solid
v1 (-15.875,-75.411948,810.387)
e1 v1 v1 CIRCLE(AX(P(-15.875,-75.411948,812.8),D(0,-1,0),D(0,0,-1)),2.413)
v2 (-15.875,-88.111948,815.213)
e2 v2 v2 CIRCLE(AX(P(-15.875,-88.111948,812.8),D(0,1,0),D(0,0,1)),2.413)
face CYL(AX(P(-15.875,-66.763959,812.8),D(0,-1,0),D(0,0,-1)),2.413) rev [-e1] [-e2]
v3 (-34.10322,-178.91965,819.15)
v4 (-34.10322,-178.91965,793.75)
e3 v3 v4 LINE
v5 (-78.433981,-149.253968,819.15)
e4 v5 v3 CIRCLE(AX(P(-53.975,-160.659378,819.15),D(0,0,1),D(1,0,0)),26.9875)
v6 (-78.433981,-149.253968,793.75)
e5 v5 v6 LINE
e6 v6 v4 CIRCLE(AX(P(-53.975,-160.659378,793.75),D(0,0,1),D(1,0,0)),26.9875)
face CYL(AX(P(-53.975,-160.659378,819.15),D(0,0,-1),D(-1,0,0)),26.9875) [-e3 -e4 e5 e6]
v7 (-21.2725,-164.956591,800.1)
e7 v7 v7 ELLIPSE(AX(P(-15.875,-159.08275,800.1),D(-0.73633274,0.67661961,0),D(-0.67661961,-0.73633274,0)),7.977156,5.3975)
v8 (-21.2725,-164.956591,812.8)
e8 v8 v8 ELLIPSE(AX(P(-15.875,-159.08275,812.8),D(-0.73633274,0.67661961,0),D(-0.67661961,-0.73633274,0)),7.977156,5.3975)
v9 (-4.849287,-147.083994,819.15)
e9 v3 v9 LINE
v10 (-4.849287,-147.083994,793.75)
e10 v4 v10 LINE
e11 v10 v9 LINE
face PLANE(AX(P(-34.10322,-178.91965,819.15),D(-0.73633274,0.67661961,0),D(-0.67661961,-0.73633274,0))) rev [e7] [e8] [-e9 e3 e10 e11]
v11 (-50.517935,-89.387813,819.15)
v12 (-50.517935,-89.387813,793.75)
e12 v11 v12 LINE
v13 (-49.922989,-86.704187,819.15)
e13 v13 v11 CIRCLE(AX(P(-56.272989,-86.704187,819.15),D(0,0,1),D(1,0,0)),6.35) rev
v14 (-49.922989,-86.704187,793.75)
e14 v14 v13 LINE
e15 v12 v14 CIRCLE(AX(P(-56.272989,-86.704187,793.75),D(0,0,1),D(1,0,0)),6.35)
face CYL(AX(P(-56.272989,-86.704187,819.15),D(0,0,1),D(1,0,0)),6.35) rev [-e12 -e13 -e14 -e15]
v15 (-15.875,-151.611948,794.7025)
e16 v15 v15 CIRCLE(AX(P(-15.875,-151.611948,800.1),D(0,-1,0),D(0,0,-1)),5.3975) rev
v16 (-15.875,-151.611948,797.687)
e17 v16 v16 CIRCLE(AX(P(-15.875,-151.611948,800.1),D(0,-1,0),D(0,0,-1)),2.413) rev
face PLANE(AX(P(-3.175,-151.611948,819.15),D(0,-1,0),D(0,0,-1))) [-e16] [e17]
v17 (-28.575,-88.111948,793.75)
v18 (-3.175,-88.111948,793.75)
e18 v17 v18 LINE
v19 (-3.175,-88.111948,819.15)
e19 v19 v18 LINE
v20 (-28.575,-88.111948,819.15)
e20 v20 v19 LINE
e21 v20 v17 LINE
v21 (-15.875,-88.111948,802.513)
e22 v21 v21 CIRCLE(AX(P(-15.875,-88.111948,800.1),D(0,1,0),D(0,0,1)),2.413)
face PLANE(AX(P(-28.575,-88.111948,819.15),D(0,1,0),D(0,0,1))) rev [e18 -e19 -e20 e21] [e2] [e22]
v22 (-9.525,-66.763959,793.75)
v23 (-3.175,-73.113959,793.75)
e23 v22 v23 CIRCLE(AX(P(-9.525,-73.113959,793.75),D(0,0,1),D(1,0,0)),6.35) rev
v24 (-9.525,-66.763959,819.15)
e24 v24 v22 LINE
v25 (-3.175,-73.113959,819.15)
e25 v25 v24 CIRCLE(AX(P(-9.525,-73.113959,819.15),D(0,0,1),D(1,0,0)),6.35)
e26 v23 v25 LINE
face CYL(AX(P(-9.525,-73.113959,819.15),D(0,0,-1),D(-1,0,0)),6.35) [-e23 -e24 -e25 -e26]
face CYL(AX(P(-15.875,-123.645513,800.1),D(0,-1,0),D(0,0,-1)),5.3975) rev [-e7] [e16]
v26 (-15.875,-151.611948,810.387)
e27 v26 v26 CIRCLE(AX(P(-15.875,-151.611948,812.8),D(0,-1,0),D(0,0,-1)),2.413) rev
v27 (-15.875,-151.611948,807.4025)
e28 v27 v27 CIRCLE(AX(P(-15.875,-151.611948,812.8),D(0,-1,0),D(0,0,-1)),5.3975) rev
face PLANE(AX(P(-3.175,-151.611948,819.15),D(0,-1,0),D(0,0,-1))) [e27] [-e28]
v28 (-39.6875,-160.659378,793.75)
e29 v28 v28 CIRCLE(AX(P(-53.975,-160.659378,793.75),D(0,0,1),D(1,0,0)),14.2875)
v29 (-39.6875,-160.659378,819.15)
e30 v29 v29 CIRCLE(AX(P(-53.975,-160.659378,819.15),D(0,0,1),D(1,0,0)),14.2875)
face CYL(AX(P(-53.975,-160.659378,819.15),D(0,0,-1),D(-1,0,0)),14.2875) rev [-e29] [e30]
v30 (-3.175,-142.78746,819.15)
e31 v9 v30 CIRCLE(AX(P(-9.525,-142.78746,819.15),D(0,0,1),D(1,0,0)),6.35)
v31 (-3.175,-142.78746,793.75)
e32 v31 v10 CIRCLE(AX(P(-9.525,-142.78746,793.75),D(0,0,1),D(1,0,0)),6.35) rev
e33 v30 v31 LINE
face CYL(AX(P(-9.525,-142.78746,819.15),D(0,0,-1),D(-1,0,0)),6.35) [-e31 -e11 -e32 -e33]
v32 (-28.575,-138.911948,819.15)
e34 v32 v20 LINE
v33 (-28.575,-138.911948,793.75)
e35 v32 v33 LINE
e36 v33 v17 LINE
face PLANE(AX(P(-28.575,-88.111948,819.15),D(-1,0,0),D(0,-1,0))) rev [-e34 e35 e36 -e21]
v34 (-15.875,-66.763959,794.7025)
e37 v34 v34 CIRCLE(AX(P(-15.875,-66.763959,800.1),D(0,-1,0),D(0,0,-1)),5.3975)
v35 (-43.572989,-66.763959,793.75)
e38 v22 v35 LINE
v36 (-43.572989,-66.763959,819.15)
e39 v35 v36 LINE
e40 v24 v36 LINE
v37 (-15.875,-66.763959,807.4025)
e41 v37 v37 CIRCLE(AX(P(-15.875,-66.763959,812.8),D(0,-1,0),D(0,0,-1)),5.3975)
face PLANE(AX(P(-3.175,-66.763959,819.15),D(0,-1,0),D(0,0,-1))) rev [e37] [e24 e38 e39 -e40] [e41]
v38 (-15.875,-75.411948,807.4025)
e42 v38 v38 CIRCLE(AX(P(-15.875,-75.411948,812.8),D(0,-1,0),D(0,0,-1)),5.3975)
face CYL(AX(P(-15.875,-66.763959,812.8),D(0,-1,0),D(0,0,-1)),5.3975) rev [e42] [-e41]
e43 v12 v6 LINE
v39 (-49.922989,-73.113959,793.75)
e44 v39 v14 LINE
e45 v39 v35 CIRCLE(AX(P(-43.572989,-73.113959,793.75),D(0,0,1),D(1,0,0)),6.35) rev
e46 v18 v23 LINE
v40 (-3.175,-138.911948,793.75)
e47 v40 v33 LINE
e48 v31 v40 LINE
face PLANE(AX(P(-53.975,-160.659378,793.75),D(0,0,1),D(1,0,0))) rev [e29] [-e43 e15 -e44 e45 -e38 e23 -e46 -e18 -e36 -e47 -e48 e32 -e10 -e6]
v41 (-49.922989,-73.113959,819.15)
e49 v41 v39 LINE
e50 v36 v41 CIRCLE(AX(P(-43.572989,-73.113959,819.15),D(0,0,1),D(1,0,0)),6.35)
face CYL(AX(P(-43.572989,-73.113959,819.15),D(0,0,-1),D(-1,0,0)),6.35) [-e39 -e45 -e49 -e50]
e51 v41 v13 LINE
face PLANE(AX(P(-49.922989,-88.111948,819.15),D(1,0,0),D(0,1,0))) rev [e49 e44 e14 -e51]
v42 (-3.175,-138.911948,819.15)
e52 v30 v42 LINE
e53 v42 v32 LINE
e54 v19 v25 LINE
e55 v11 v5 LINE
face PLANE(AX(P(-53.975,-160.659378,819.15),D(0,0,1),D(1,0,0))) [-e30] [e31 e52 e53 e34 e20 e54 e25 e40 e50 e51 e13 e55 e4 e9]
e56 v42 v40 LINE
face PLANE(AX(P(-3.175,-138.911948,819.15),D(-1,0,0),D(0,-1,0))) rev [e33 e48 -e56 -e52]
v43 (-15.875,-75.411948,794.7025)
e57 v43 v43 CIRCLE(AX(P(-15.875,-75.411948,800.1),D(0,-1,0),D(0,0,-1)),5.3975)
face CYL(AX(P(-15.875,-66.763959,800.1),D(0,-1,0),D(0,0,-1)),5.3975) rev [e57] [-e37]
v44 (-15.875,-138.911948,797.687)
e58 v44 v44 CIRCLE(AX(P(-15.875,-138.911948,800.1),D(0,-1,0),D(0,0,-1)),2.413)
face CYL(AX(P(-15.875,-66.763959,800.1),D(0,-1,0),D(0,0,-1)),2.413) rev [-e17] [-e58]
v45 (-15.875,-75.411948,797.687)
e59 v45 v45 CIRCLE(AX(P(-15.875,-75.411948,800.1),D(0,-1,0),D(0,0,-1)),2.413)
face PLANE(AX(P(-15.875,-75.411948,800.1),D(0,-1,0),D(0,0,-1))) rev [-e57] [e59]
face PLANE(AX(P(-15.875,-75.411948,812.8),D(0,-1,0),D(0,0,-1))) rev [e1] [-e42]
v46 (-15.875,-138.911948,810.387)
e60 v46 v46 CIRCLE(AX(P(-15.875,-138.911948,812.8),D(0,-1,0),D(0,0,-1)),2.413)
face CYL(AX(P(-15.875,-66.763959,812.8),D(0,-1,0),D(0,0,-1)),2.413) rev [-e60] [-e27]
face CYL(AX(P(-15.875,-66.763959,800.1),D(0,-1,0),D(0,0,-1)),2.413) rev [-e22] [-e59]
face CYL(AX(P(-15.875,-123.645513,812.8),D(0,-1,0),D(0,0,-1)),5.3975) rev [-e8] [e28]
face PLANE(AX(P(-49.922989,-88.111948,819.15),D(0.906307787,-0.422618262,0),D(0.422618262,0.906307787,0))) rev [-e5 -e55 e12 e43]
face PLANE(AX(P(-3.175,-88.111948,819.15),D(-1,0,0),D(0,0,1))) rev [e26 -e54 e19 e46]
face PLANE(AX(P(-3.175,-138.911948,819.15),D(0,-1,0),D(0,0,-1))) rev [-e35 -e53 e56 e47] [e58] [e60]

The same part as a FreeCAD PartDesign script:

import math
import FreeCAD as App
import Part
import Sketcher
from FreeCAD import Vector
Q = App.Units.Quantity


def edges_at(feature, points):
    """Names of the edges that pass closest to the given points."""
    edges = feature.Shape.Edges
    near = lambda p: min(range(len(edges)), key=lambda i: edges[i].distToShape(Part.Vertex(*p))[0])
    return sorted({f"Edge{near(p) + 1}" for p in points})

doc = App.newDocument("Part")
body = doc.addObject("PartDesign::Body", "Body")

sketch1 = doc.addObject("Sketcher::SketchObject", "Sketch")
body.addObject(sketch1)
sketch1.AttachmentSupport = (doc.XY_Plane, [""])
sketch1.MapMode = "FlatFace"
sketch1.AttachmentOffset = App.Placement(Vector(0, 0, 31.25 * 25.4), App.Rotation())
sketch1.addGeometry([
    Part.LineSegment(Vector(-3, -139, 0), Vector(-29, -139, 0)),
    Part.LineSegment(Vector(-29, -139, 0), Vector(-29, -88, 0)),
    Part.LineSegment(Vector(-29, -88, 0), Vector(-3, -88, 0)),
    Part.LineSegment(Vector(-3, -88, 0), Vector(-3, -67, 0)),
    Part.LineSegment(Vector(-3, -67, 0), Vector(-50, -67, 0)),
    Part.LineSegment(Vector(-50, -67, 0), Vector(-50, -88, 0)),
    Part.LineSegment(Vector(-50, -88, 0), Vector(-78, -149, 0)),
    Part.ArcOfCircle(Part.Circle(Vector(-54, -161, 0), Vector(0, 0, 1), 27), math.radians(155), math.radians(317)),
    Part.LineSegment(Vector(-34, -179, 0), Vector(-3, -145, 0)),
    Part.LineSegment(Vector(-3, -145, 0), Vector(-3, -139, 0)),
    Part.Circle(Vector(-54, -161, 0), Vector(0, 0, 1), 14),
], False)
sketch1.addConstraint([
    Sketcher.Constraint("Coincident", 0, 2, 1, 1),
    Sketcher.Constraint("Coincident", 1, 2, 2, 1),
    Sketcher.Constraint("Coincident", 2, 2, 3, 1),
    Sketcher.Constraint("Coincident", 3, 2, 4, 1),
    Sketcher.Constraint("Coincident", 4, 2, 5, 1),
    Sketcher.Constraint("Coincident", 5, 2, 6, 1),
    Sketcher.Constraint("Tangent", 6, 2, 7, 1),
    Sketcher.Constraint("Tangent", 7, 2, 8, 1),
    Sketcher.Constraint("Coincident", 8, 2, 9, 1),
    Sketcher.Constraint("Coincident", 9, 2, 0, 1),
    Sketcher.Constraint("Horizontal", 0),
    Sketcher.Constraint("Vertical", 1),
    Sketcher.Constraint("Horizontal", 2),
    Sketcher.Constraint("Vertical", 3),
    Sketcher.Constraint("Horizontal", 4),
    Sketcher.Constraint("Vertical", 5),
    Sketcher.Constraint("Vertical", 9),
    Sketcher.Constraint("Coincident", 10, 3, 7, 3),
    Sketcher.Constraint("Horizontal", 2, 2, 5, 2),
    Sketcher.Constraint("Vertical", 3, 2, 8, 2),
    Sketcher.Constraint("DistanceX", 0, 2, 0, 1, Q("1 in")),
    Sketcher.Constraint("DistanceY", 1, 1, 1, 2, Q("2 in")),
    Sketcher.Constraint("Diameter", 10, Q("1.125 in")),
    Sketcher.Constraint("Angle", 6, Q("-115 deg")),
    Sketcher.Constraint("Radius", 7, Q("1.0625 in")),
    Sketcher.Constraint("DistanceX", 7, 3, 0, 2, Q("1 in")),
    Sketcher.Constraint("DistanceY", 9, 1, 9, 2, Q("0.25 in")),
    Sketcher.Constraint("DistanceX", 7, 3, -1, 1, Q("2.125 in")),
    Sketcher.Constraint("DistanceX", 4, 2, 4, 1, 46.747989),
    Sketcher.Constraint("DistanceY", 3, 1, 3, 2, 21.347989),
    Sketcher.Constraint("DistanceY", 7, 3, -1, 1, 160.659378),
])
pad1 = doc.addObject("PartDesign::Pad", "Pad")
body.addObject(pad1)
pad1.Profile = sketch1
pad1.Length = Q("1 in")

sketch2 = doc.addObject("Sketcher::SketchObject", "Sketch001")
body.addObject(sketch2)
sketch2.AttachmentSupport = (doc.XZ_Plane, [""])
sketch2.MapMode = "FlatFace"
sketch2.AttachmentOffset = App.Placement(Vector(0, 0, 65.763959), App.Rotation())
sketch2.addGeometry(Part.Circle(Vector(-15.9, 800.1, 0), Vector(0, 0, 1), 2.4), False)
sketch2.addConstraint([
    Sketcher.Constraint("Diameter", 0, Q("0.19 in")),
    Sketcher.Constraint("DistanceY", -1, 1, 0, 3, Q("31.5 in")),
    Sketcher.Constraint("DistanceX", 0, 3, -1, 1, Q("0.625 in")),
])
pocket1 = doc.addObject("PartDesign::Pocket", "Pocket")
body.addObject(pocket1)
pocket1.Profile = sketch2
pocket1.Length = 122.882919
pocket1.Reversed = True

sketch3 = doc.addObject("Sketcher::SketchObject", "Sketch002")
body.addObject(sketch3)
sketch3.AttachmentSupport = (doc.XZ_Plane, [""])
sketch3.MapMode = "FlatFace"
sketch3.AttachmentOffset = App.Placement(Vector(0, 0, 75.411948), App.Rotation())
sketch3.addGeometry([
    Part.Circle(Vector(-15.9, 800.1, 0), Vector(0, 0, 1), 5.4),
    Part.Circle(Vector(-15.9, 800.1, 0), Vector(0, 0, 1), 2.4),
], False)
sketch3.addConstraint([
    Sketcher.Constraint("Coincident", 1, 3, 0, 3),
    Sketcher.Constraint("Diameter", 1, Q("0.19 in")),
    Sketcher.Constraint("Diameter", 0, Q("0.425 in")),
    Sketcher.Constraint("DistanceY", -1, 1, 0, 3, Q("31.5 in")),
    Sketcher.Constraint("DistanceX", 0, 3, -1, 1, Q("0.625 in")),
])
pocket2 = doc.addObject("PartDesign::Pocket", "Pocket001")
body.addObject(pocket2)
pocket2.Profile = sketch3
pocket2.Type = "ThroughAll"

sketch4 = doc.addObject("Sketcher::SketchObject", "Sketch003")
body.addObject(sketch4)
sketch4.AttachmentSupport = (doc.XZ_Plane, [""])
sketch4.MapMode = "FlatFace"
sketch4.AttachmentOffset = App.Placement(Vector(0, 0, 178.91965), App.Rotation())
sketch4.addGeometry([
    Part.Circle(Vector(-15.9, 800.1, 0), Vector(0, 0, 1), 5.4),
    Part.Circle(Vector(-15.9, 800.1, 0), Vector(0, 0, 1), 2.4),
], False)
sketch4.addConstraint([
    Sketcher.Constraint("Coincident", 1, 3, 0, 3),
    Sketcher.Constraint("Diameter", 1, Q("0.19 in")),
    Sketcher.Constraint("Diameter", 0, Q("0.425 in")),
    Sketcher.Constraint("DistanceY", -1, 1, 0, 3, Q("31.5 in")),
    Sketcher.Constraint("DistanceX", 0, 3, -1, 1, Q("0.625 in")),
])
pocket3 = doc.addObject("PartDesign::Pocket", "Pocket002")
body.addObject(pocket3)
pocket3.Profile = sketch4
pocket3.Length = 27.307702
doc.recompute()

linearpattern = doc.addObject("PartDesign::LinearPattern", "LinearPattern")
body.addObject(linearpattern)
linearpattern.Originals = [pocket1, pocket2, pocket3]
linearpattern.Direction = (doc.Z_Axis, [""])
linearpattern.Mode = "offset"
linearpattern.Offset = Q("0.5 in")
linearpattern.Occurrences = 2
body.Tip = linearpattern
doc.recompute()

fillet = doc.addObject("PartDesign::Fillet", "Fillet")
body.addObject(fillet)
fillet.Base = (linearpattern, edges_at(linearpattern, [
    (-3.175, -145.262, 806.45),
    (-49.923, -88.112, 806.45),
    (-49.923, -66.764, 806.45),
    (-3.175, -66.764, 806.45),
]))
fillet.Radius = Q("0.25 in")

doc.recompute()
